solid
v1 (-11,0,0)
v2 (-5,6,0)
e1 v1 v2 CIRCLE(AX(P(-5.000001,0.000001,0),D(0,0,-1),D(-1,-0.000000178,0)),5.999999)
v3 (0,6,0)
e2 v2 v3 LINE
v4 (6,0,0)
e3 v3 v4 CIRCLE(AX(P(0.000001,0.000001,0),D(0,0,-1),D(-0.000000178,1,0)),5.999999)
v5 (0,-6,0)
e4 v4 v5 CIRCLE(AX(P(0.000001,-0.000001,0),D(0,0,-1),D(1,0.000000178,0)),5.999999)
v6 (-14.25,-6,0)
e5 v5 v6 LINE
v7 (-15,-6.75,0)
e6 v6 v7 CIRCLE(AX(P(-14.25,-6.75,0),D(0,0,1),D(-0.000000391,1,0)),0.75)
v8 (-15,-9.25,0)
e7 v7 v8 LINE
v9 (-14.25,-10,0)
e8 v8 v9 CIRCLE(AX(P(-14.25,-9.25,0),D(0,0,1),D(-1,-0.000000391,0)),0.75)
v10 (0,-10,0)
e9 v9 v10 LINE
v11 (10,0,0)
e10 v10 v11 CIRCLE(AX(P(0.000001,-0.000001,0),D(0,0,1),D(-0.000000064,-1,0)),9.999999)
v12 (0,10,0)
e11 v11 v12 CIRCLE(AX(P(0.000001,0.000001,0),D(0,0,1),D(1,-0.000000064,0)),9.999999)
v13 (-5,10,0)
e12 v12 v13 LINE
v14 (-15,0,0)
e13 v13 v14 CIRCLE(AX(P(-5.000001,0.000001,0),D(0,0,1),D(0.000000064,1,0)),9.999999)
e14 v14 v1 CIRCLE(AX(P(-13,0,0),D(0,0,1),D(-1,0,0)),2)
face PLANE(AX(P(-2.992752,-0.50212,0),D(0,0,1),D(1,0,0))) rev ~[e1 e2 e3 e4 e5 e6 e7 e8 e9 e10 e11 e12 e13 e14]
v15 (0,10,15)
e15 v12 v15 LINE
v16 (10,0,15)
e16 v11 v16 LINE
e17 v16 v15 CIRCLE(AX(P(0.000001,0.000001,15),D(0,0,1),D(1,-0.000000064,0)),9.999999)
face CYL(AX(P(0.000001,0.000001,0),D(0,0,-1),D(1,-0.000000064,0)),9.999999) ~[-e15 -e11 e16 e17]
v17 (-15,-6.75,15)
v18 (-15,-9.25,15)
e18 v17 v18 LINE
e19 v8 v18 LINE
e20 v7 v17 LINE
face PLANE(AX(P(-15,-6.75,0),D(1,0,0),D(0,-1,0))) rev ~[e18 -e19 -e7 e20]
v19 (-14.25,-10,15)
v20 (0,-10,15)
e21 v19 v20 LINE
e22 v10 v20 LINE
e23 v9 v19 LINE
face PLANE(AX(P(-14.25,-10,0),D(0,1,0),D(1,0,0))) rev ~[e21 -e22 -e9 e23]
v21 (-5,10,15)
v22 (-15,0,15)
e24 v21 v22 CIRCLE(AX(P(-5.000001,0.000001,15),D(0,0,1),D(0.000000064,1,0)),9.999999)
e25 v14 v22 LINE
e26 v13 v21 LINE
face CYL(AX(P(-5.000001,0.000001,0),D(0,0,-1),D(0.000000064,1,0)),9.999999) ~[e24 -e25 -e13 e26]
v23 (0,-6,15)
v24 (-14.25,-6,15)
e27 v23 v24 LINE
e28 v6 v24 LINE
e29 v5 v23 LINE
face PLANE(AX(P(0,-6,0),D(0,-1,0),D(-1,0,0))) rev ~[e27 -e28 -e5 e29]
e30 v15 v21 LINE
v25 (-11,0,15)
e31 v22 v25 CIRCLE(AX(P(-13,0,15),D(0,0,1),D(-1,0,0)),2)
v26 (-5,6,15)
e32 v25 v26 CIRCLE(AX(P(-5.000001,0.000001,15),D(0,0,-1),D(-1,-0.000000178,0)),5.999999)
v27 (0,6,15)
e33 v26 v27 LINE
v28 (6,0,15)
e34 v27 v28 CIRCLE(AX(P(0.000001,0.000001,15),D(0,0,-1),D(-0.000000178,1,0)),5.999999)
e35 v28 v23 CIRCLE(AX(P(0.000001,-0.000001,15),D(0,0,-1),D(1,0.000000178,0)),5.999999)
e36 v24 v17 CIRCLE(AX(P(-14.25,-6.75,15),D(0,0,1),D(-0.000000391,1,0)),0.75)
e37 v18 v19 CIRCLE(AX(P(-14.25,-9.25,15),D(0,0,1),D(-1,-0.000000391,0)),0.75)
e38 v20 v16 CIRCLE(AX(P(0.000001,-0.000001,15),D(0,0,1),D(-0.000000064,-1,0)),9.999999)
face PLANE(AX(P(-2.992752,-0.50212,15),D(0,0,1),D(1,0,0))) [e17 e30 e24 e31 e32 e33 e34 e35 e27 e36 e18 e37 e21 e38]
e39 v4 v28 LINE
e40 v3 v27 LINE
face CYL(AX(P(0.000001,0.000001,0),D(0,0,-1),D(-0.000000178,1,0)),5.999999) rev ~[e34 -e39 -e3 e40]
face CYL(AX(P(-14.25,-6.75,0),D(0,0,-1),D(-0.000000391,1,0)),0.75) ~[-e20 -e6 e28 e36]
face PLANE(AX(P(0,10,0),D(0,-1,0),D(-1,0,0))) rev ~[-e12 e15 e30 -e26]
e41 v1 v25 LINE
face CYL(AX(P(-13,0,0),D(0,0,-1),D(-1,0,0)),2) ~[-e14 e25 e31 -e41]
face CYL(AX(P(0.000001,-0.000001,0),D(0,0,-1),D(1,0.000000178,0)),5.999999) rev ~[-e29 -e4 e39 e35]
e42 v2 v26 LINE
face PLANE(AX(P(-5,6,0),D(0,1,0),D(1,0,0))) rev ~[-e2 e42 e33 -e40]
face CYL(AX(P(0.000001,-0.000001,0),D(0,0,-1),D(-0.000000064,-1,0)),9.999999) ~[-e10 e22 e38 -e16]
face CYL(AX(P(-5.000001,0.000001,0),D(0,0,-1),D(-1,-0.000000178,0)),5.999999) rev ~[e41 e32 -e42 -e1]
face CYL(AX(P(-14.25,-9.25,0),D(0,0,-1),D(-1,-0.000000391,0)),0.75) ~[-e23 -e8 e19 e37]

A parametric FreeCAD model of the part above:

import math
import FreeCAD as App
import Part
import Sketcher

V = App.Vector

doc = App.newDocument("Part")
body = doc.addObject("PartDesign::Body", "Body")

sketch1 = body.newObject("Sketcher::SketchObject", "Sketch")
sketch1.AttachmentSupport = (doc.getObject("XY_Plane"), [""])
sketch1.MapMode = "FlatFace"
sketch1.addGeometry(Part.ArcOfCircle(Part.Circle(V(0.000001, -0.000001, 0), V(0, 0, 1), 5.999999), math.radians(-90.00001), math.radians(0.00001)), False)
sketch1.addGeometry(Part.LineSegment(V(0, -6, 0), V(-14.25, -6, 0)), False)
sketch1.addGeometry(Part.ArcOfCircle(Part.Circle(V(-14.25, -6.75, 0), V(0, 0, 1), 0.75), math.radians(90.000022), math.radians(179.999978)), False)
sketch1.addGeometry(Part.LineSegment(V(-15, -6.75, 0), V(-15, -9.25, 0)), False)
sketch1.addGeometry(Part.ArcOfCircle(Part.Circle(V(-14.25, -9.25, 0), V(0, 0, 1), 0.75), math.radians(-179.999978), math.radians(-90.000022)), False)
sketch1.addGeometry(Part.LineSegment(V(-14.25, -10, 0), V(0, -10, 0)), False)
sketch1.addGeometry(Part.ArcOfCircle(Part.Circle(V(0.000001, -0.000001, 0), V(0, 0, 1), 9.999999), math.radians(-90.000004), math.radians(0.000004)), False)
sketch1.addGeometry(Part.ArcOfCircle(Part.Circle(V(0.000001, 0.000001, 0), V(0, 0, 1), 9.999999), math.radians(-0.000004), math.radians(90.000004)), False)
sketch1.addGeometry(Part.LineSegment(V(0, 10, 0), V(-5, 10, 0)), False)
sketch1.addGeometry(Part.ArcOfCircle(Part.Circle(V(-5.000001, 0.000001, 0), V(0, 0, 1), 9.999999), math.radians(89.999996), math.radians(180.000004)), False)
sketch1.addGeometry(Part.ArcOfCircle(Part.Circle(V(-13, 0, 0), V(0, 0, 1), 2), math.radians(180), math.radians(360)), False)
sketch1.addGeometry(Part.ArcOfCircle(Part.Circle(V(-5.000001, 0.000001, 0), V(0, 0, 1), 5.999999), math.radians(89.99999), math.radians(180.00001)), False)
sketch1.addGeometry(Part.LineSegment(V(-5, 6, 0), V(0, 6, 0)), False)
sketch1.addGeometry(Part.ArcOfCircle(Part.Circle(V(0.000001, 0.000001, 0), V(0, 0, 1), 5.999999), math.radians(-0.00001), math.radians(90.00001)), False)
sketch1.addConstraint(Sketcher.Constraint("Tangent", 0, 1, 1, 1))
sketch1.addConstraint(Sketcher.Constraint("Tangent", 1, 2, 2, 1))
sketch1.addConstraint(Sketcher.Constraint("Tangent", 2, 2, 3, 1))
sketch1.addConstraint(Sketcher.Constraint("Tangent", 3, 2, 4, 1))
sketch1.addConstraint(Sketcher.Constraint("Tangent", 4, 2, 5, 1))
sketch1.addConstraint(Sketcher.Constraint("Tangent", 5, 2, 6, 1))
sketch1.addConstraint(Sketcher.Constraint("Tangent", 6, 2, 7, 1))
sketch1.addConstraint(Sketcher.Constraint("Tangent", 7, 2, 8, 1))
sketch1.addConstraint(Sketcher.Constraint("Tangent", 8, 2, 9, 1))
sketch1.addConstraint(Sketcher.Constraint("Tangent", 9, 2, 10, 1))
sketch1.addConstraint(Sketcher.Constraint("Tangent", 10, 2, 11, 2))
sketch1.addConstraint(Sketcher.Constraint("Tangent", 11, 1, 12, 1))
sketch1.addConstraint(Sketcher.Constraint("Tangent", 12, 2, 13, 2))
sketch1.addConstraint(Sketcher.Constraint("Tangent", 13, 1, 0, 2))
sketch1.addConstraint(Sketcher.Constraint("Horizontal", 1))
sketch1.addConstraint(Sketcher.Constraint("Vertical", 3))
sketch1.addConstraint(Sketcher.Constraint("Horizontal", 5))
sketch1.addConstraint(Sketcher.Constraint("Horizontal", 8))
sketch1.addConstraint(Sketcher.Constraint("Horizontal", 12))
sketch1.addConstraint(Sketcher.Constraint("Coincident", 0, 3, -1, 1))
sketch1.addConstraint(Sketcher.Constraint("Coincident", 6, 3, -1, 1))
sketch1.addConstraint(Sketcher.Constraint("Coincident", 11, 3, 9, 3))
sketch1.addConstraint(Sketcher.Constraint("Equal", 2, 4))
sketch1.addConstraint(Sketcher.Constraint("Equal", 6, 7))
sketch1.addConstraint(Sketcher.Constraint("Equal", 7, 9))
sketch1.addConstraint(Sketcher.Constraint("Equal", 0, 11))
sketch1.addConstraint(Sketcher.Constraint("PointOnObject", 10, 3, -1))
sketch1.addConstraint(Sketcher.Constraint("PointOnObject", 6, 2, -1))
sketch1.addConstraint(Sketcher.Constraint("PointOnObject", 13, 1, -1))
sketch1.addConstraint(Sketcher.Constraint("Vertical", 3, 2, 9, 2))
sketch1.addConstraint(Sketcher.Constraint("Radius", 0, 5.999999))
sketch1.addConstraint(Sketcher.Constraint("Radius", 6, 9.999999))
sketch1.addConstraint(Sketcher.Constraint("DistanceX", 8, 2, 8, 1, 5.0))
sketch1.addConstraint(Sketcher.Constraint("Radius", 2, 0.75))
pad1 = body.newObject("PartDesign::Pad", "Pad")
pad1.Profile = sketch1
pad1.Length = 15

doc.recompute()
